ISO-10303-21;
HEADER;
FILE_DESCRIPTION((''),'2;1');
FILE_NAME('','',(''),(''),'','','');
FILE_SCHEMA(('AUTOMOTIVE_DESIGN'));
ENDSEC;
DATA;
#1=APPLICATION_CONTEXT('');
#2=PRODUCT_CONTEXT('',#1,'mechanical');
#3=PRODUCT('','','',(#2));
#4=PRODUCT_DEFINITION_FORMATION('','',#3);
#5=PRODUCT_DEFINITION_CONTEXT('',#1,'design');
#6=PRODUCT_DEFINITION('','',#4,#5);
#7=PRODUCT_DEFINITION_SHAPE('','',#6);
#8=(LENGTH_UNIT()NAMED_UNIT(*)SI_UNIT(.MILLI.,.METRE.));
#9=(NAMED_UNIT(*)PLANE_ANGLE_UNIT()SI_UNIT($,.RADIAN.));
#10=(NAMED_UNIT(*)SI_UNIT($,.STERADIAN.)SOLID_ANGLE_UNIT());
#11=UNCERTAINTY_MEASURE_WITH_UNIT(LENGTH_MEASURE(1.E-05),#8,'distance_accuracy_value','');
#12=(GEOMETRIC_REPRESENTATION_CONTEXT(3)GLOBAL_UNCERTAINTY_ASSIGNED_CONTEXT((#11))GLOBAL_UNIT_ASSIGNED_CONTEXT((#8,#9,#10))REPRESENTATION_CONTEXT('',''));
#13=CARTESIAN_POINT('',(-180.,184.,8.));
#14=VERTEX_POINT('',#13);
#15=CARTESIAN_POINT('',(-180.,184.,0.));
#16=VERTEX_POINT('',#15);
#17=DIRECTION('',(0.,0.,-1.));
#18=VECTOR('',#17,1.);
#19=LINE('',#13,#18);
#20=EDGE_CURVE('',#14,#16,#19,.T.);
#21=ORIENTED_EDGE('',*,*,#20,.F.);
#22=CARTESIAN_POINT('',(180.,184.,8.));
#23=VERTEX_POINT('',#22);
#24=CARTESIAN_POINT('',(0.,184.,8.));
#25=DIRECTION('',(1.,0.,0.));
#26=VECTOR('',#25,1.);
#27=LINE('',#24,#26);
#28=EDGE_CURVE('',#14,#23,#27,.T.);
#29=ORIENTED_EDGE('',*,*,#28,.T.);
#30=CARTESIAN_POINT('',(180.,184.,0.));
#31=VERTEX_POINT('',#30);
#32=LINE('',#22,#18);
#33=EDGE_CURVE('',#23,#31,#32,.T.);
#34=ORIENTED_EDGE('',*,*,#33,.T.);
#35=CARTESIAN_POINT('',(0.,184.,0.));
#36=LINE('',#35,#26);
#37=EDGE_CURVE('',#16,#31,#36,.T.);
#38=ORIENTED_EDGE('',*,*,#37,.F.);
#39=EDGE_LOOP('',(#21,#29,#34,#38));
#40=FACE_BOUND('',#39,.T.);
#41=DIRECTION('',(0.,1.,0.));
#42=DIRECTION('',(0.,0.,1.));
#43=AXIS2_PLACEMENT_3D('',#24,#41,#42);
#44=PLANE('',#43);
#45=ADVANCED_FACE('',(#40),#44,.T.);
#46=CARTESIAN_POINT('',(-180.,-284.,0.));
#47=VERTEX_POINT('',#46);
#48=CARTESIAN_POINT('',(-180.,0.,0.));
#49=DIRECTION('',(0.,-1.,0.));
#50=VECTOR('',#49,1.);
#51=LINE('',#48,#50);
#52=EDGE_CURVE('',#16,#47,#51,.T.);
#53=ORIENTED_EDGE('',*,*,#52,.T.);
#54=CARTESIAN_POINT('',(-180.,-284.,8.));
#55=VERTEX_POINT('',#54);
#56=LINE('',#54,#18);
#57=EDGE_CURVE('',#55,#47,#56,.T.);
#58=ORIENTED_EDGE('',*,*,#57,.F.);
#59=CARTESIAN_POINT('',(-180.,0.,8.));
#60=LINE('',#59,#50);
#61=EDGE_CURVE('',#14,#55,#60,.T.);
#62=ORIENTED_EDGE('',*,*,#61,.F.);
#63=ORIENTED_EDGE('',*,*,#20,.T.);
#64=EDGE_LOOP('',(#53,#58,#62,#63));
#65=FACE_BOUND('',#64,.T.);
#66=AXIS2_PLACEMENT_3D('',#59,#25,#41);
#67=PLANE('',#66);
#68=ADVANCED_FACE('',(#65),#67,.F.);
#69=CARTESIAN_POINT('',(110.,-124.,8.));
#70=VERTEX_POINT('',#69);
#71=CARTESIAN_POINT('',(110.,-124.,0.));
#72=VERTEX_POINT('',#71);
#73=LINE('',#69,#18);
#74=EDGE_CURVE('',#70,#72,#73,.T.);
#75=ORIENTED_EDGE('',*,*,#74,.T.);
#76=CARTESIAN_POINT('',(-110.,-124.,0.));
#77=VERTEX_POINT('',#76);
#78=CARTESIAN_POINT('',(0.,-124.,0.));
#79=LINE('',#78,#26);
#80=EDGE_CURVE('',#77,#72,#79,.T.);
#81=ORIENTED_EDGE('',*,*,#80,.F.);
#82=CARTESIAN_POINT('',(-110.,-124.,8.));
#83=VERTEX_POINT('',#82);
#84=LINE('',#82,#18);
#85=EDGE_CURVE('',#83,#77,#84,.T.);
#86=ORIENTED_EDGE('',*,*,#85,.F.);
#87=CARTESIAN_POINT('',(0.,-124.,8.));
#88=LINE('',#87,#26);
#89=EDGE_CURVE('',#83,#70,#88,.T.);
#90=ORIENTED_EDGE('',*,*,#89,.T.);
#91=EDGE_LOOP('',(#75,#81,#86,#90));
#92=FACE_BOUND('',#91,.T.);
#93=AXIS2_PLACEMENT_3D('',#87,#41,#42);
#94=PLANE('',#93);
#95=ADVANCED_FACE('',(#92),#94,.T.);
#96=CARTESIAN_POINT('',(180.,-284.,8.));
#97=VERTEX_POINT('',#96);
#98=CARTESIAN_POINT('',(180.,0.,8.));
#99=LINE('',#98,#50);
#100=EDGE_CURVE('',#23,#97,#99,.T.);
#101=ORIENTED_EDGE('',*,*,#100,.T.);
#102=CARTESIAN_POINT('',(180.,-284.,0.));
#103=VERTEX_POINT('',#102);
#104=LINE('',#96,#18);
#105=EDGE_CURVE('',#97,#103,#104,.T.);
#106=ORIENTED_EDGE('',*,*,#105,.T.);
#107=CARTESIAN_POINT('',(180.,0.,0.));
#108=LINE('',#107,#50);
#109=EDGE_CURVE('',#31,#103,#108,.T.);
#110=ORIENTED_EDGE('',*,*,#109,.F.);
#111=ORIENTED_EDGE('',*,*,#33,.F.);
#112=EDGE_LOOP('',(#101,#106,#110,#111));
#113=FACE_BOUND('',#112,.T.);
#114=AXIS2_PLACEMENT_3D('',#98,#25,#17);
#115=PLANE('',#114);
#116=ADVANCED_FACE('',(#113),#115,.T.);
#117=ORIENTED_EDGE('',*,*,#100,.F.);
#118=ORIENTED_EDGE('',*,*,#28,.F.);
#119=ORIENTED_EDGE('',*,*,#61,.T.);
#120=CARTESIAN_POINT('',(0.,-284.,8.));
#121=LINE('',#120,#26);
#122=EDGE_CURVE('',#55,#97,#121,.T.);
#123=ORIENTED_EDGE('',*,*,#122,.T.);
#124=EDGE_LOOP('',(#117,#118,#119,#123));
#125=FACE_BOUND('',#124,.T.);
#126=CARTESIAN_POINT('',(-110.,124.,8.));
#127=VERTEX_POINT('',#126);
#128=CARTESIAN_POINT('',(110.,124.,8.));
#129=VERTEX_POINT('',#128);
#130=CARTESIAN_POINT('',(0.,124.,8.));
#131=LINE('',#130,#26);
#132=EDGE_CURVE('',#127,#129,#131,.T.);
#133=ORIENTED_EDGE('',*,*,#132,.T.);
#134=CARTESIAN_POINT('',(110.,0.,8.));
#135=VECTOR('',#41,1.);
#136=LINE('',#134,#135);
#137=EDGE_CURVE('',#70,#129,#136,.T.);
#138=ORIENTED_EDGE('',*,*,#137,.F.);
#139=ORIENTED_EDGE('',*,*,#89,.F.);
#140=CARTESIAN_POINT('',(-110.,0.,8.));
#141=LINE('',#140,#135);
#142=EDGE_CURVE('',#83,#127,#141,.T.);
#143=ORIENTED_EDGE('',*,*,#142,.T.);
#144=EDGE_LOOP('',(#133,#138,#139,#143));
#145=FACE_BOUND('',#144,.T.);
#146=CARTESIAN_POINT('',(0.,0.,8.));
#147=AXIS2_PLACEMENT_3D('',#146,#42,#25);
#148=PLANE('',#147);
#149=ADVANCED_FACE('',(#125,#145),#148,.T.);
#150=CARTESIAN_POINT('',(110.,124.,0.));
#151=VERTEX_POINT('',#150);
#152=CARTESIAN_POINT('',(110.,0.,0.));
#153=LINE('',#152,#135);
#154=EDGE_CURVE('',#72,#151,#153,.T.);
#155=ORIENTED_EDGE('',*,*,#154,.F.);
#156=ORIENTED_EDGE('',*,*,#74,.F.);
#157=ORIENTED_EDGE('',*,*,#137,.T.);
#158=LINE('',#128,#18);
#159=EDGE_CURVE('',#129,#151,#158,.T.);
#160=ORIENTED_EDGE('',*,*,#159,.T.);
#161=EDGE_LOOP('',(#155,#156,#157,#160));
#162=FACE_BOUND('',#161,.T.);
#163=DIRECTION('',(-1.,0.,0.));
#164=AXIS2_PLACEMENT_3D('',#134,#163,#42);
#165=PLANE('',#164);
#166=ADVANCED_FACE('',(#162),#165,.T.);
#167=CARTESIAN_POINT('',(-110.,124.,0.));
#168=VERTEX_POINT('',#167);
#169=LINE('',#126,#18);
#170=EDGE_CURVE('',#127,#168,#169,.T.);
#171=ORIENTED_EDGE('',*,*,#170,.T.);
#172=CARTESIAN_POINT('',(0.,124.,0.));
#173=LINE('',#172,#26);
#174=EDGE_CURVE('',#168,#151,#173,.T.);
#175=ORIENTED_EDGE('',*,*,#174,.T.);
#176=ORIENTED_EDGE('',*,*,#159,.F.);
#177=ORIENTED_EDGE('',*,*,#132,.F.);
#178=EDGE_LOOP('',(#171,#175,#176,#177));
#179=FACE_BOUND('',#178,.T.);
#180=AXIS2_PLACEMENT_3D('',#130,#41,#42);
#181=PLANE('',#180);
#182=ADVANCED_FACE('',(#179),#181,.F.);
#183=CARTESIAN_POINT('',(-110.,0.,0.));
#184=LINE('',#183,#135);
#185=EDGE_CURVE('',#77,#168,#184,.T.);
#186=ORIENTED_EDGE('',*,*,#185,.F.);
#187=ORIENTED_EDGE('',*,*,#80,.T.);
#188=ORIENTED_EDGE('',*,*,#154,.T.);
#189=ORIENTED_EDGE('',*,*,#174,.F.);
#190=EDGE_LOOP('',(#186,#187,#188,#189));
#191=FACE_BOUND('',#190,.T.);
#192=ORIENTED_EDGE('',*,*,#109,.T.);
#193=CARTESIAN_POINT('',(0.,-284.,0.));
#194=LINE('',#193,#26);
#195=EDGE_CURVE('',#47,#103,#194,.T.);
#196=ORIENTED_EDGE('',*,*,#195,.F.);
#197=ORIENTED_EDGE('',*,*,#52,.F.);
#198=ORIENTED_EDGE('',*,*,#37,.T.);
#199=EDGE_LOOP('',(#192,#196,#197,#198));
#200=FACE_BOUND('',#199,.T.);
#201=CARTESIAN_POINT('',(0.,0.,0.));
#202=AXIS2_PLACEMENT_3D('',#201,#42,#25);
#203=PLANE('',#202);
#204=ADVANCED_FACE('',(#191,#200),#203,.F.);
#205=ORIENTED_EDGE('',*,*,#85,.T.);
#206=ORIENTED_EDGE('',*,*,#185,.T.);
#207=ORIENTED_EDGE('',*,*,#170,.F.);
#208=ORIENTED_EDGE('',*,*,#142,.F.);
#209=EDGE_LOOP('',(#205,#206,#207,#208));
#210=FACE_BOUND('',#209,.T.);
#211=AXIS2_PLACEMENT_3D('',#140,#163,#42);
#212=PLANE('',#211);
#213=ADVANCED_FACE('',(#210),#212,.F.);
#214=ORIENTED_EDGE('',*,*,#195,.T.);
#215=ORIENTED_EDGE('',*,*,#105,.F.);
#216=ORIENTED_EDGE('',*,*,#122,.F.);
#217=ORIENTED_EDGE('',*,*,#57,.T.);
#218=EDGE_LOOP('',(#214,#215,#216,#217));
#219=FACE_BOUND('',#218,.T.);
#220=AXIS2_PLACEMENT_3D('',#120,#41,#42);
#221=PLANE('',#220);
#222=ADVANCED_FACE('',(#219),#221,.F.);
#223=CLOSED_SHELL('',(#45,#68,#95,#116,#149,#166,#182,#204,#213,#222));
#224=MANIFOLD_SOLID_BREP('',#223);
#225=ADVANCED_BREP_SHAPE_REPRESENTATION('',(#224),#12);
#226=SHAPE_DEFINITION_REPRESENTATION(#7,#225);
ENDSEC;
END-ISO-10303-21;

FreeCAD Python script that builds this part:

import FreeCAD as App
import Part
import Sketcher
from FreeCAD import Vector
Q = App.Units.Quantity


def add_polygon(sketch, points):
    """Adds a closed chain of lines whose ends are joined by coincident constraints."""
    first, n = sketch.GeometryCount, len(points)
    for a, b in zip(points, points[1:] + points[:1]):
        sketch.addGeometry(Part.LineSegment(App.Vector(*a, 0), App.Vector(*b, 0)), False)
    for i in range(n):
        sketch.addConstraint(Sketcher.Constraint("Coincident", first + i, 2, first + (i + 1) % n, 1))

doc = App.newDocument("Part")
body = doc.addObject("PartDesign::Body", "Body")

sketch1 = body.newObject("Sketcher::SketchObject", "Sketch")
sketch1.AttachmentSupport = (doc.getObject("XY_Plane"), [""])
sketch1.MapMode = "FlatFace"
add_polygon(sketch1, [(-180, -284), (180, -284), (180, 184), (-180, 184)])
add_polygon(sketch1, [(-110, -124), (-110, 124), (110, 124), (110, -124)])
sketch1.addConstraint([
    Sketcher.Constraint("Horizontal", 0),
    Sketcher.Constraint("Vertical", 1),
    Sketcher.Constraint("Horizontal", 2),
    Sketcher.Constraint("Vertical", 3),
    Sketcher.Constraint("Vertical", 4),
    Sketcher.Constraint("Horizontal", 5),
    Sketcher.Constraint("Vertical", 6),
    Sketcher.Constraint("Horizontal", 7),
    Sketcher.Constraint("Symmetric", 4, 2, 6, 2, -1, 1),
    Sketcher.Constraint("DistanceX", 0, 1, 0, 2, Q("360 mm")),
    Sketcher.Constraint("DistanceX", 5, 1, 5, 2, Q("220 mm")),
    Sketcher.Constraint("DistanceY", 1, 1, 1, 2, Q("468 mm")),
    Sketcher.Constraint("DistanceY", 4, 1, 4, 2, Q("248 mm")),
    Sketcher.Constraint("DistanceX", -1, 1, 0, 2, Q("180 mm")),
    Sketcher.Constraint("DistanceY", 0, 2, -1, 1, Q("284 mm")),
])
pad1 = body.newObject("PartDesign::Pad", "Pad")
pad1.Profile = sketch1
pad1.Length = 8

doc.recompute()
